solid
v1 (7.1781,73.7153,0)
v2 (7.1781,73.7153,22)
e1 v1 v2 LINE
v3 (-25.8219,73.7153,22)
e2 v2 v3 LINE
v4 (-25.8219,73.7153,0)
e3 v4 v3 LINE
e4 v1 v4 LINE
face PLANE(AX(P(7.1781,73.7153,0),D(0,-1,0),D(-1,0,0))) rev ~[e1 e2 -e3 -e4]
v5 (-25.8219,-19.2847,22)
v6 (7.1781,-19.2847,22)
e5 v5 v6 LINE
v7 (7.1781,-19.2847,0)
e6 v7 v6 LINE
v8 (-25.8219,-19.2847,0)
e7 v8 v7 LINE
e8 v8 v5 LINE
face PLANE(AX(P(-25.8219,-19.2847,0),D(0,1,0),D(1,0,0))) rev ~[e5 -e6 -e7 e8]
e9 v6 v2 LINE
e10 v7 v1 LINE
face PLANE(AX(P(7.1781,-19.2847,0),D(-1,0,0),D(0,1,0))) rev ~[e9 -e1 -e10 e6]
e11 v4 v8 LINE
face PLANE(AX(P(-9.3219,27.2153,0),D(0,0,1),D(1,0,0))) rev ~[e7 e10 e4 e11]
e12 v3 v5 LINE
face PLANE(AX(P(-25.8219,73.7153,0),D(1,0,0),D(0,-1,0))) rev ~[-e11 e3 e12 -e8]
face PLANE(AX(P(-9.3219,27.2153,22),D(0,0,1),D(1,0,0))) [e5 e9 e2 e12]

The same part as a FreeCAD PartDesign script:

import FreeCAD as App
import Part
import Sketcher
Q = App.Units.Quantity

doc = App.newDocument("Part")
body = doc.addObject("PartDesign::Body", "Body")

# Sketch on XY plane
sketch1 = doc.addObject("Sketcher::SketchObject", "Sketch")
body.addObject(sketch1)
sketch1.AttachmentSupport = (doc.XY_Plane, [""])
sketch1.MapMode = "FlatFace"
sketch1.addGeometry([
    Part.LineSegment(App.Vector(7.1781, 73.7153, 0), App.Vector(-25.8219, 73.7153, 0)),
    Part.LineSegment(App.Vector(-25.8219, 73.7153, 0), App.Vector(-25.8219, -19.2847, 0)),
    Part.LineSegment(App.Vector(-25.8219, -19.2847, 0), App.Vector(7.1781, -19.2847, 0)),
    Part.LineSegment(App.Vector(7.1781, -19.2847, 0), App.Vector(7.1781, 73.7153, 0)),
], False)
sketch1.addConstraint([
    Sketcher.Constraint("Coincident", 0, 2, 1, 1),
    Sketcher.Constraint("Coincident", 1, 2, 2, 1),
    Sketcher.Constraint("Coincident", 2, 2, 3, 1),
    Sketcher.Constraint("Coincident", 3, 2, 0, 1),
    Sketcher.Constraint("Horizontal", 0),
    Sketcher.Constraint("Vertical", 1),
    Sketcher.Constraint("Horizontal", 2),
    Sketcher.Constraint("Vertical", 3),
    Sketcher.Constraint("DistanceX", 0, 2, 0, 1, Q("33 mm")),
    Sketcher.Constraint("DistanceY", 1, 2, 1, 1, Q("93 mm")),
    Sketcher.Constraint("DistanceX", 0, 2, -1, 1, Q("25.822 mm")),
    Sketcher.Constraint("DistanceY", -1, 1, 0, 2, Q("73.7153 mm")),
])
pad1 = doc.addObject("PartDesign::Pad", "Pad")
body.addObject(pad1)
pad1.Profile = sketch1
pad1.Length = 22

doc.recompute()
